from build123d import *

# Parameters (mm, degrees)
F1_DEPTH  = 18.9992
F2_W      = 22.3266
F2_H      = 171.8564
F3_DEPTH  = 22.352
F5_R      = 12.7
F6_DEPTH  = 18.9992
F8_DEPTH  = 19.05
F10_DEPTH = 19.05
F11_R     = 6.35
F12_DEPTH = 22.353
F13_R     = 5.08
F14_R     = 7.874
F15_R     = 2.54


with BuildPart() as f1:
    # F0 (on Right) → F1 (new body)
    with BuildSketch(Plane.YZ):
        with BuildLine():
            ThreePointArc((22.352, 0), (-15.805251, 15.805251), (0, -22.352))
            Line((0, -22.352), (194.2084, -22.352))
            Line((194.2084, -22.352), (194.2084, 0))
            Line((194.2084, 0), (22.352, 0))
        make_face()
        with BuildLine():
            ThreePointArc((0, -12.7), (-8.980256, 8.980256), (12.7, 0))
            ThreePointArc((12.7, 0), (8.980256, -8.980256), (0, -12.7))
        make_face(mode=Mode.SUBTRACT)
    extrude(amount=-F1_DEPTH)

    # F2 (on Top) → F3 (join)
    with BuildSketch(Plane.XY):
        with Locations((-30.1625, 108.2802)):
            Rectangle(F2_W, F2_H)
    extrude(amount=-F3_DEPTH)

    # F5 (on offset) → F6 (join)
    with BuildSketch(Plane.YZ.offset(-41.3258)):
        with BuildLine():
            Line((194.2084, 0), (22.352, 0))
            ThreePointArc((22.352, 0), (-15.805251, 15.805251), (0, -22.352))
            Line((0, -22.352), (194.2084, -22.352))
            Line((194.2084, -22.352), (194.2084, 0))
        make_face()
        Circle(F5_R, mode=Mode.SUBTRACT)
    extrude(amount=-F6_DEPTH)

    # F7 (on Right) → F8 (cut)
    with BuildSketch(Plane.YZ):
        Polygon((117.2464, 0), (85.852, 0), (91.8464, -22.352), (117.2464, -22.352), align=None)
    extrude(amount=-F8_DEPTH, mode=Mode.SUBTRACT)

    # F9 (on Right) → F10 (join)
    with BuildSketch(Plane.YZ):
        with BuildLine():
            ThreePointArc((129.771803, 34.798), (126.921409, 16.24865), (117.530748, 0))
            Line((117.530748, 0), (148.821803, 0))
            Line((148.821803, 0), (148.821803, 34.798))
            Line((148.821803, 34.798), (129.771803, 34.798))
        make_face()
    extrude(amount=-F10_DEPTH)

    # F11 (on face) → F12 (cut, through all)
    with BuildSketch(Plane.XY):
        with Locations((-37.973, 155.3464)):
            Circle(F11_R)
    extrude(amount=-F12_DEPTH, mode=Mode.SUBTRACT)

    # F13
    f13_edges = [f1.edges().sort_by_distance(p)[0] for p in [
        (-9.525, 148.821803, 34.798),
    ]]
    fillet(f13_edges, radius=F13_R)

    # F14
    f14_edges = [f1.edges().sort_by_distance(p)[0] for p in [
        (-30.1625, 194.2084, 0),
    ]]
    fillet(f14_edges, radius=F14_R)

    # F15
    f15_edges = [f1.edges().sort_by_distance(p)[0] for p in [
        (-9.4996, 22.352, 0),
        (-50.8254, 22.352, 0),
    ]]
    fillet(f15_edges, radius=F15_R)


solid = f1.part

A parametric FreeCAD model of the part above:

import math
import FreeCAD as App
import Part
import Sketcher
Q = App.Units.Quantity


def edges_at(feature, points):
    """Names of the edges that pass closest to the given points."""
    edges = feature.Shape.Edges
    near = lambda p: min(range(len(edges)), key=lambda i: edges[i].distToShape(Part.Vertex(*p))[0])
    return sorted({f"Edge{near(p) + 1}" for p in points})


def add_polygon(sketch, points):
    """Adds a closed chain of lines whose ends are joined by coincident constraints."""
    first, n = sketch.GeometryCount, len(points)
    for a, b in zip(points, points[1:] + points[:1]):
        sketch.addGeometry(Part.LineSegment(App.Vector(*a, 0), App.Vector(*b, 0)), False)
    for i in range(n):
        sketch.addConstraint(Sketcher.Constraint("Coincident", first + i, 2, first + (i + 1) % n, 1))

doc = App.newDocument("Part")
body = doc.addObject("PartDesign::Body", "Body")

# Sketch on YZ plane
sketch1 = doc.addObject("Sketcher::SketchObject", "Sketch")
body.addObject(sketch1)
sketch1.AttachmentSupport = (doc.YZ_Plane, [""])
sketch1.MapMode = "FlatFace"
sketch1.addGeometry(Part.ArcOfCircle(Part.Circle(App.Vector(0, 0, 0), App.Vector(0, 0, 1), 22), math.radians(0), math.radians(270)), False)
sketch1.addGeometry(Part.LineSegment(App.Vector(0, -22, 0), App.Vector(194, -22, 0)), False)
sketch1.addGeometry(Part.LineSegment(App.Vector(194, -22, 0), App.Vector(194, 0, 0)), False)
sketch1.addGeometry(Part.LineSegment(App.Vector(194, 0, 0), App.Vector(22, 0, 0)), False)
sketch1.addGeometry(Part.ArcOfCircle(Part.Circle(App.Vector(0, 0, 0), App.Vector(0, 0, 1), 13), math.radians(-90), math.radians(0)), False)
sketch1.addGeometry(Part.ArcOfCircle(Part.Circle(App.Vector(0, 0, 0), App.Vector(0, 0, 1), 13), math.radians(0), math.radians(270)), False)
sketch1.addConstraint(Sketcher.Constraint("Tangent", 0, 2, 1, 1))
sketch1.addConstraint(Sketcher.Constraint("Coincident", 1, 2, 2, 1))
sketch1.addConstraint(Sketcher.Constraint("Coincident", 2, 2, 3, 1))
sketch1.addConstraint(Sketcher.Constraint("Coincident", 3, 2, 0, 1))
sketch1.addConstraint(Sketcher.Constraint("Tangent", 4, 1, 5, 2))
sketch1.addConstraint(Sketcher.Constraint("Coincident", 5, 1, 4, 2))
sketch1.addConstraint(Sketcher.Constraint("Horizontal", 1))
sketch1.addConstraint(Sketcher.Constraint("Vertical", 2))
sketch1.addConstraint(Sketcher.Constraint("Horizontal", 3))
sketch1.addConstraint(Sketcher.Constraint("Coincident", 0, 3, -1, 1))
sketch1.addConstraint(Sketcher.Constraint("Coincident", 4, 3, -1, 1))
sketch1.addConstraint(Sketcher.Constraint("PointOnObject", 2, 2, -1))
sketch1.addConstraint(Sketcher.Constraint("PointOnObject", 4, 1, -2))
sketch1.addConstraint(Sketcher.Constraint("PointOnObject", 5, 1, -1))
sketch1.addConstraint(Sketcher.Constraint("Radius", 4, Q("0.5 in")))
sketch1.addConstraint(Sketcher.Constraint("Radius", 0, Q("0.88 in")))
sketch1.addConstraint(Sketcher.Constraint("DistanceX", 1, 1, 1, 2, Q("7.646 in")))
pad1 = doc.addObject("PartDesign::Pad", "Pad")
body.addObject(pad1)
pad1.Profile = sketch1
pad1.Length = Q("0.748 in")
pad1.Reversed = True

# Sketch on XY plane
sketch2 = doc.addObject("Sketcher::SketchObject", "Sketch001")
body.addObject(sketch2)
sketch2.AttachmentSupport = (doc.XY_Plane, [""])
sketch2.MapMode = "FlatFace"
add_polygon(sketch2, [(-41, 194), (-41, 22), (-19, 22), (-19, 194)])  # lines 0-3
sketch2.addConstraint(Sketcher.Constraint("Vertical", 0))
sketch2.addConstraint(Sketcher.Constraint("Horizontal", 1))
sketch2.addConstraint(Sketcher.Constraint("Vertical", 2))
sketch2.addConstraint(Sketcher.Constraint("Horizontal", 3))
sketch2.addConstraint(Sketcher.Constraint("DistanceX", 1, 1, 1, 2, Q("0.879 in")))
sketch2.addConstraint(Sketcher.Constraint("DistanceY", 0, 2, 0, 1, Q("6.766 in")))
sketch2.addConstraint(Sketcher.Constraint("DistanceY", -1, 1, 0, 2, Q("0.88 in")))
sketch2.addConstraint(Sketcher.Constraint("DistanceX", 0, 2, -1, 1, Q("1.627 in")))
pad2 = doc.addObject("PartDesign::Pad", "Pad001")
body.addObject(pad2)
pad2.Profile = sketch2
pad2.Length = Q("0.88 in")
pad2.Reversed = True

# Sketch on YZ plane
sketch3 = doc.addObject("Sketcher::SketchObject", "Sketch002")
body.addObject(sketch3)
sketch3.AttachmentSupport = (doc.YZ_Plane, [""])
sketch3.MapMode = "FlatFace"
sketch3.AttachmentOffset = App.Placement(App.Vector(0, 0, -1.627 * 25.4), App.Rotation())
sketch3.addGeometry(Part.LineSegment(App.Vector(194, 0, 0), App.Vector(22, 0, 0)), False)
sketch3.addGeometry(Part.ArcOfCircle(Part.Circle(App.Vector(0, 0, 0), App.Vector(0, 0, 1), 22), math.radians(0), math.radians(270)), False)
sketch3.addGeometry(Part.LineSegment(App.Vector(0, -22, 0), App.Vector(194, -22, 0)), False)
sketch3.addGeometry(Part.LineSegment(App.Vector(194, -22, 0), App.Vector(194, 0, 0)), False)
sketch3.addGeometry(Part.Circle(App.Vector(0, 0, 0), App.Vector(0, 0, 1), 13), False)
sketch3.addConstraint(Sketcher.Constraint("Coincident", 0, 2, 1, 1))
sketch3.addConstraint(Sketcher.Constraint("Tangent", 1, 2, 2, 1))
sketch3.addConstraint(Sketcher.Constraint("Coincident", 2, 2, 3, 1))
sketch3.addConstraint(Sketcher.Constraint("Coincident", 3, 2, 0, 1))
sketch3.addConstraint(Sketcher.Constraint("Horizontal", 0))
sketch3.addConstraint(Sketcher.Constraint("Horizontal", 2))
sketch3.addConstraint(Sketcher.Constraint("Vertical", 3))
sketch3.addConstraint(Sketcher.Constraint("Coincident", 1, 3, -1, 1))
sketch3.addConstraint(Sketcher.Constraint("Coincident", 4, 3, -1, 1))
sketch3.addConstraint(Sketcher.Constraint("PointOnObject", 0, 2, -1))
sketch3.addConstraint(Sketcher.Constraint("Diameter", 4, Q("1 in")))
sketch3.addConstraint(Sketcher.Constraint("Radius", 1, Q("0.88 in")))
sketch3.addConstraint(Sketcher.Constraint("DistanceX", 0, 2, 0, 1, Q("6.766 in")))
pad3 = doc.addObject("PartDesign::Pad", "Pad002")
body.addObject(pad3)
pad3.Profile = sketch3
pad3.Length = Q("0.748 in")
pad3.Reversed = True

# Sketch on YZ plane
sketch4 = doc.addObject("Sketcher::SketchObject", "Sketch003")
body.addObject(sketch4)
sketch4.AttachmentSupport = (doc.YZ_Plane, [""])
sketch4.MapMode = "FlatFace"
add_polygon(sketch4, [(117, 0), (86, 0), (92, -22), (117, -22)])  # lines 0-3
sketch4.addConstraint(Sketcher.Constraint("Horizontal", 0))
sketch4.addConstraint(Sketcher.Constraint("Horizontal", 2))
sketch4.addConstraint(Sketcher.Constraint("Vertical", 3))
sketch4.addConstraint(Sketcher.Constraint("PointOnObject", 0, 2, -1))
sketch4.addConstraint(Sketcher.Constraint("DistanceX", 2, 1, 2, 2, Q("1 in")))
sketch4.addConstraint(Sketcher.Constraint("DistanceY", 3, 1, 3, 2, Q("0.88 in")))
sketch4.addConstraint(Sketcher.Constraint("DistanceX", 0, 2, 0, 1, Q("1.236 in")))
sketch4.addConstraint(Sketcher.Constraint("DistanceX", -1, 1, 0, 2, Q("3.38 in")))
pocket1 = doc.addObject("PartDesign::Pocket", "Pocket")
body.addObject(pocket1)
pocket1.Profile = sketch4
pocket1.Length = Q("0.75 in")

# Sketch on YZ plane
sketch5 = doc.addObject("Sketcher::SketchObject", "Sketch004")
body.addObject(sketch5)
sketch5.AttachmentSupport = (doc.YZ_Plane, [""])
sketch5.MapMode = "FlatFace"
sketch5.addGeometry(Part.ArcOfCircle(Part.Circle(App.Vector(79, 33, 0), App.Vector(0, 0, 1), 51), math.radians(-41), math.radians(2)), False)
sketch5.addGeometry(Part.LineSegment(App.Vector(118, 0, 0), App.Vector(149, 0, 0)), False)
sketch5.addGeometry(Part.LineSegment(App.Vector(149, 0, 0), App.Vector(149, 35, 0)), False)
sketch5.addGeometry(Part.LineSegment(App.Vector(149, 35, 0), App.Vector(130, 35, 0)), False)
sketch5.addConstraint(Sketcher.Constraint("Coincident", 0, 1, 1, 1))
sketch5.addConstraint(Sketcher.Constraint("Coincident", 1, 2, 2, 1))
sketch5.addConstraint(Sketcher.Constraint("Coincident", 2, 2, 3, 1))
sketch5.addConstraint(Sketcher.Constraint("Coincident", 3, 2, 0, 2))
sketch5.addConstraint(Sketcher.Constraint("Horizontal", 1))
sketch5.addConstraint(Sketcher.Constraint("Vertical", 2))
sketch5.addConstraint(Sketcher.Constraint("Horizontal", 3))
sketch5.addConstraint(Sketcher.Constraint("PointOnObject", 0, 1, -1))
sketch5.addConstraint(Sketcher.Constraint("DistanceX", 3, 2, 3, 1, Q("0.75 in")))
sketch5.addConstraint(Sketcher.Constraint("DistanceY", 2, 1, 2, 2, Q("1.37 in")))
sketch5.addConstraint(Sketcher.Constraint("Radius", 0, 50.800008))
sketch5.addConstraint(Sketcher.Constraint("DistanceX", 1, 1, 1, 2, 31.291055))
sketch5.addConstraint(Sketcher.Constraint("DistanceX", -1, 1, 0, 1, 117.530748))
pad4 = doc.addObject("PartDesign::Pad", "Pad003")
body.addObject(pad4)
pad4.Profile = sketch5
pad4.Length = Q("0.75 in")
pad4.Reversed = True

# Sketch on XY plane
sketch6 = doc.addObject("Sketcher::SketchObject", "Sketch005")
body.addObject(sketch6)
sketch6.AttachmentSupport = (doc.XY_Plane, [""])
sketch6.MapMode = "FlatFace"
sketch6.addGeometry(Part.Circle(App.Vector(-38, 155, 0), App.Vector(0, 0, 1), 6), False)
sketch6.addConstraint(Sketcher.Constraint("Diameter", 0, Q("0.5 in")))
sketch6.addConstraint(Sketcher.Constraint("DistanceX", 0, 3, -1, 1, Q("1.495 in")))
sketch6.addConstraint(Sketcher.Constraint("DistanceY", -1, 1, 0, 3, Q("6.116 in")))
pocket2 = doc.addObject("PartDesign::Pocket", "Pocket001")
body.addObject(pocket2)
pocket2.Profile = sketch6
pocket2.Type = "ThroughAll"
doc.recompute()

fillet = doc.addObject("PartDesign::Fillet", "Fillet")
body.addObject(fillet)
fillet.Base = (pocket2, edges_at(pocket2, [(-9.525, 148.822, 34.798)]))
fillet.Radius = Q("0.2 in")
doc.recompute()

fillet2 = doc.addObject("PartDesign::Fillet", "Fillet001")
body.addObject(fillet2)
fillet2.Base = (fillet, edges_at(fillet, [(-30.163, 194.208, 0)]))
fillet2.Radius = Q("0.31 in")
doc.recompute()

fillet3 = doc.addObject("PartDesign::Fillet", "Fillet002")
body.addObject(fillet3)
fillet3.Base = (fillet2, edges_at(fillet2, [(-9.5, 22.352, 0), (-50.825, 22.352, 0)]))
fillet3.Radius = Q("0.1 in")

doc.recompute()
